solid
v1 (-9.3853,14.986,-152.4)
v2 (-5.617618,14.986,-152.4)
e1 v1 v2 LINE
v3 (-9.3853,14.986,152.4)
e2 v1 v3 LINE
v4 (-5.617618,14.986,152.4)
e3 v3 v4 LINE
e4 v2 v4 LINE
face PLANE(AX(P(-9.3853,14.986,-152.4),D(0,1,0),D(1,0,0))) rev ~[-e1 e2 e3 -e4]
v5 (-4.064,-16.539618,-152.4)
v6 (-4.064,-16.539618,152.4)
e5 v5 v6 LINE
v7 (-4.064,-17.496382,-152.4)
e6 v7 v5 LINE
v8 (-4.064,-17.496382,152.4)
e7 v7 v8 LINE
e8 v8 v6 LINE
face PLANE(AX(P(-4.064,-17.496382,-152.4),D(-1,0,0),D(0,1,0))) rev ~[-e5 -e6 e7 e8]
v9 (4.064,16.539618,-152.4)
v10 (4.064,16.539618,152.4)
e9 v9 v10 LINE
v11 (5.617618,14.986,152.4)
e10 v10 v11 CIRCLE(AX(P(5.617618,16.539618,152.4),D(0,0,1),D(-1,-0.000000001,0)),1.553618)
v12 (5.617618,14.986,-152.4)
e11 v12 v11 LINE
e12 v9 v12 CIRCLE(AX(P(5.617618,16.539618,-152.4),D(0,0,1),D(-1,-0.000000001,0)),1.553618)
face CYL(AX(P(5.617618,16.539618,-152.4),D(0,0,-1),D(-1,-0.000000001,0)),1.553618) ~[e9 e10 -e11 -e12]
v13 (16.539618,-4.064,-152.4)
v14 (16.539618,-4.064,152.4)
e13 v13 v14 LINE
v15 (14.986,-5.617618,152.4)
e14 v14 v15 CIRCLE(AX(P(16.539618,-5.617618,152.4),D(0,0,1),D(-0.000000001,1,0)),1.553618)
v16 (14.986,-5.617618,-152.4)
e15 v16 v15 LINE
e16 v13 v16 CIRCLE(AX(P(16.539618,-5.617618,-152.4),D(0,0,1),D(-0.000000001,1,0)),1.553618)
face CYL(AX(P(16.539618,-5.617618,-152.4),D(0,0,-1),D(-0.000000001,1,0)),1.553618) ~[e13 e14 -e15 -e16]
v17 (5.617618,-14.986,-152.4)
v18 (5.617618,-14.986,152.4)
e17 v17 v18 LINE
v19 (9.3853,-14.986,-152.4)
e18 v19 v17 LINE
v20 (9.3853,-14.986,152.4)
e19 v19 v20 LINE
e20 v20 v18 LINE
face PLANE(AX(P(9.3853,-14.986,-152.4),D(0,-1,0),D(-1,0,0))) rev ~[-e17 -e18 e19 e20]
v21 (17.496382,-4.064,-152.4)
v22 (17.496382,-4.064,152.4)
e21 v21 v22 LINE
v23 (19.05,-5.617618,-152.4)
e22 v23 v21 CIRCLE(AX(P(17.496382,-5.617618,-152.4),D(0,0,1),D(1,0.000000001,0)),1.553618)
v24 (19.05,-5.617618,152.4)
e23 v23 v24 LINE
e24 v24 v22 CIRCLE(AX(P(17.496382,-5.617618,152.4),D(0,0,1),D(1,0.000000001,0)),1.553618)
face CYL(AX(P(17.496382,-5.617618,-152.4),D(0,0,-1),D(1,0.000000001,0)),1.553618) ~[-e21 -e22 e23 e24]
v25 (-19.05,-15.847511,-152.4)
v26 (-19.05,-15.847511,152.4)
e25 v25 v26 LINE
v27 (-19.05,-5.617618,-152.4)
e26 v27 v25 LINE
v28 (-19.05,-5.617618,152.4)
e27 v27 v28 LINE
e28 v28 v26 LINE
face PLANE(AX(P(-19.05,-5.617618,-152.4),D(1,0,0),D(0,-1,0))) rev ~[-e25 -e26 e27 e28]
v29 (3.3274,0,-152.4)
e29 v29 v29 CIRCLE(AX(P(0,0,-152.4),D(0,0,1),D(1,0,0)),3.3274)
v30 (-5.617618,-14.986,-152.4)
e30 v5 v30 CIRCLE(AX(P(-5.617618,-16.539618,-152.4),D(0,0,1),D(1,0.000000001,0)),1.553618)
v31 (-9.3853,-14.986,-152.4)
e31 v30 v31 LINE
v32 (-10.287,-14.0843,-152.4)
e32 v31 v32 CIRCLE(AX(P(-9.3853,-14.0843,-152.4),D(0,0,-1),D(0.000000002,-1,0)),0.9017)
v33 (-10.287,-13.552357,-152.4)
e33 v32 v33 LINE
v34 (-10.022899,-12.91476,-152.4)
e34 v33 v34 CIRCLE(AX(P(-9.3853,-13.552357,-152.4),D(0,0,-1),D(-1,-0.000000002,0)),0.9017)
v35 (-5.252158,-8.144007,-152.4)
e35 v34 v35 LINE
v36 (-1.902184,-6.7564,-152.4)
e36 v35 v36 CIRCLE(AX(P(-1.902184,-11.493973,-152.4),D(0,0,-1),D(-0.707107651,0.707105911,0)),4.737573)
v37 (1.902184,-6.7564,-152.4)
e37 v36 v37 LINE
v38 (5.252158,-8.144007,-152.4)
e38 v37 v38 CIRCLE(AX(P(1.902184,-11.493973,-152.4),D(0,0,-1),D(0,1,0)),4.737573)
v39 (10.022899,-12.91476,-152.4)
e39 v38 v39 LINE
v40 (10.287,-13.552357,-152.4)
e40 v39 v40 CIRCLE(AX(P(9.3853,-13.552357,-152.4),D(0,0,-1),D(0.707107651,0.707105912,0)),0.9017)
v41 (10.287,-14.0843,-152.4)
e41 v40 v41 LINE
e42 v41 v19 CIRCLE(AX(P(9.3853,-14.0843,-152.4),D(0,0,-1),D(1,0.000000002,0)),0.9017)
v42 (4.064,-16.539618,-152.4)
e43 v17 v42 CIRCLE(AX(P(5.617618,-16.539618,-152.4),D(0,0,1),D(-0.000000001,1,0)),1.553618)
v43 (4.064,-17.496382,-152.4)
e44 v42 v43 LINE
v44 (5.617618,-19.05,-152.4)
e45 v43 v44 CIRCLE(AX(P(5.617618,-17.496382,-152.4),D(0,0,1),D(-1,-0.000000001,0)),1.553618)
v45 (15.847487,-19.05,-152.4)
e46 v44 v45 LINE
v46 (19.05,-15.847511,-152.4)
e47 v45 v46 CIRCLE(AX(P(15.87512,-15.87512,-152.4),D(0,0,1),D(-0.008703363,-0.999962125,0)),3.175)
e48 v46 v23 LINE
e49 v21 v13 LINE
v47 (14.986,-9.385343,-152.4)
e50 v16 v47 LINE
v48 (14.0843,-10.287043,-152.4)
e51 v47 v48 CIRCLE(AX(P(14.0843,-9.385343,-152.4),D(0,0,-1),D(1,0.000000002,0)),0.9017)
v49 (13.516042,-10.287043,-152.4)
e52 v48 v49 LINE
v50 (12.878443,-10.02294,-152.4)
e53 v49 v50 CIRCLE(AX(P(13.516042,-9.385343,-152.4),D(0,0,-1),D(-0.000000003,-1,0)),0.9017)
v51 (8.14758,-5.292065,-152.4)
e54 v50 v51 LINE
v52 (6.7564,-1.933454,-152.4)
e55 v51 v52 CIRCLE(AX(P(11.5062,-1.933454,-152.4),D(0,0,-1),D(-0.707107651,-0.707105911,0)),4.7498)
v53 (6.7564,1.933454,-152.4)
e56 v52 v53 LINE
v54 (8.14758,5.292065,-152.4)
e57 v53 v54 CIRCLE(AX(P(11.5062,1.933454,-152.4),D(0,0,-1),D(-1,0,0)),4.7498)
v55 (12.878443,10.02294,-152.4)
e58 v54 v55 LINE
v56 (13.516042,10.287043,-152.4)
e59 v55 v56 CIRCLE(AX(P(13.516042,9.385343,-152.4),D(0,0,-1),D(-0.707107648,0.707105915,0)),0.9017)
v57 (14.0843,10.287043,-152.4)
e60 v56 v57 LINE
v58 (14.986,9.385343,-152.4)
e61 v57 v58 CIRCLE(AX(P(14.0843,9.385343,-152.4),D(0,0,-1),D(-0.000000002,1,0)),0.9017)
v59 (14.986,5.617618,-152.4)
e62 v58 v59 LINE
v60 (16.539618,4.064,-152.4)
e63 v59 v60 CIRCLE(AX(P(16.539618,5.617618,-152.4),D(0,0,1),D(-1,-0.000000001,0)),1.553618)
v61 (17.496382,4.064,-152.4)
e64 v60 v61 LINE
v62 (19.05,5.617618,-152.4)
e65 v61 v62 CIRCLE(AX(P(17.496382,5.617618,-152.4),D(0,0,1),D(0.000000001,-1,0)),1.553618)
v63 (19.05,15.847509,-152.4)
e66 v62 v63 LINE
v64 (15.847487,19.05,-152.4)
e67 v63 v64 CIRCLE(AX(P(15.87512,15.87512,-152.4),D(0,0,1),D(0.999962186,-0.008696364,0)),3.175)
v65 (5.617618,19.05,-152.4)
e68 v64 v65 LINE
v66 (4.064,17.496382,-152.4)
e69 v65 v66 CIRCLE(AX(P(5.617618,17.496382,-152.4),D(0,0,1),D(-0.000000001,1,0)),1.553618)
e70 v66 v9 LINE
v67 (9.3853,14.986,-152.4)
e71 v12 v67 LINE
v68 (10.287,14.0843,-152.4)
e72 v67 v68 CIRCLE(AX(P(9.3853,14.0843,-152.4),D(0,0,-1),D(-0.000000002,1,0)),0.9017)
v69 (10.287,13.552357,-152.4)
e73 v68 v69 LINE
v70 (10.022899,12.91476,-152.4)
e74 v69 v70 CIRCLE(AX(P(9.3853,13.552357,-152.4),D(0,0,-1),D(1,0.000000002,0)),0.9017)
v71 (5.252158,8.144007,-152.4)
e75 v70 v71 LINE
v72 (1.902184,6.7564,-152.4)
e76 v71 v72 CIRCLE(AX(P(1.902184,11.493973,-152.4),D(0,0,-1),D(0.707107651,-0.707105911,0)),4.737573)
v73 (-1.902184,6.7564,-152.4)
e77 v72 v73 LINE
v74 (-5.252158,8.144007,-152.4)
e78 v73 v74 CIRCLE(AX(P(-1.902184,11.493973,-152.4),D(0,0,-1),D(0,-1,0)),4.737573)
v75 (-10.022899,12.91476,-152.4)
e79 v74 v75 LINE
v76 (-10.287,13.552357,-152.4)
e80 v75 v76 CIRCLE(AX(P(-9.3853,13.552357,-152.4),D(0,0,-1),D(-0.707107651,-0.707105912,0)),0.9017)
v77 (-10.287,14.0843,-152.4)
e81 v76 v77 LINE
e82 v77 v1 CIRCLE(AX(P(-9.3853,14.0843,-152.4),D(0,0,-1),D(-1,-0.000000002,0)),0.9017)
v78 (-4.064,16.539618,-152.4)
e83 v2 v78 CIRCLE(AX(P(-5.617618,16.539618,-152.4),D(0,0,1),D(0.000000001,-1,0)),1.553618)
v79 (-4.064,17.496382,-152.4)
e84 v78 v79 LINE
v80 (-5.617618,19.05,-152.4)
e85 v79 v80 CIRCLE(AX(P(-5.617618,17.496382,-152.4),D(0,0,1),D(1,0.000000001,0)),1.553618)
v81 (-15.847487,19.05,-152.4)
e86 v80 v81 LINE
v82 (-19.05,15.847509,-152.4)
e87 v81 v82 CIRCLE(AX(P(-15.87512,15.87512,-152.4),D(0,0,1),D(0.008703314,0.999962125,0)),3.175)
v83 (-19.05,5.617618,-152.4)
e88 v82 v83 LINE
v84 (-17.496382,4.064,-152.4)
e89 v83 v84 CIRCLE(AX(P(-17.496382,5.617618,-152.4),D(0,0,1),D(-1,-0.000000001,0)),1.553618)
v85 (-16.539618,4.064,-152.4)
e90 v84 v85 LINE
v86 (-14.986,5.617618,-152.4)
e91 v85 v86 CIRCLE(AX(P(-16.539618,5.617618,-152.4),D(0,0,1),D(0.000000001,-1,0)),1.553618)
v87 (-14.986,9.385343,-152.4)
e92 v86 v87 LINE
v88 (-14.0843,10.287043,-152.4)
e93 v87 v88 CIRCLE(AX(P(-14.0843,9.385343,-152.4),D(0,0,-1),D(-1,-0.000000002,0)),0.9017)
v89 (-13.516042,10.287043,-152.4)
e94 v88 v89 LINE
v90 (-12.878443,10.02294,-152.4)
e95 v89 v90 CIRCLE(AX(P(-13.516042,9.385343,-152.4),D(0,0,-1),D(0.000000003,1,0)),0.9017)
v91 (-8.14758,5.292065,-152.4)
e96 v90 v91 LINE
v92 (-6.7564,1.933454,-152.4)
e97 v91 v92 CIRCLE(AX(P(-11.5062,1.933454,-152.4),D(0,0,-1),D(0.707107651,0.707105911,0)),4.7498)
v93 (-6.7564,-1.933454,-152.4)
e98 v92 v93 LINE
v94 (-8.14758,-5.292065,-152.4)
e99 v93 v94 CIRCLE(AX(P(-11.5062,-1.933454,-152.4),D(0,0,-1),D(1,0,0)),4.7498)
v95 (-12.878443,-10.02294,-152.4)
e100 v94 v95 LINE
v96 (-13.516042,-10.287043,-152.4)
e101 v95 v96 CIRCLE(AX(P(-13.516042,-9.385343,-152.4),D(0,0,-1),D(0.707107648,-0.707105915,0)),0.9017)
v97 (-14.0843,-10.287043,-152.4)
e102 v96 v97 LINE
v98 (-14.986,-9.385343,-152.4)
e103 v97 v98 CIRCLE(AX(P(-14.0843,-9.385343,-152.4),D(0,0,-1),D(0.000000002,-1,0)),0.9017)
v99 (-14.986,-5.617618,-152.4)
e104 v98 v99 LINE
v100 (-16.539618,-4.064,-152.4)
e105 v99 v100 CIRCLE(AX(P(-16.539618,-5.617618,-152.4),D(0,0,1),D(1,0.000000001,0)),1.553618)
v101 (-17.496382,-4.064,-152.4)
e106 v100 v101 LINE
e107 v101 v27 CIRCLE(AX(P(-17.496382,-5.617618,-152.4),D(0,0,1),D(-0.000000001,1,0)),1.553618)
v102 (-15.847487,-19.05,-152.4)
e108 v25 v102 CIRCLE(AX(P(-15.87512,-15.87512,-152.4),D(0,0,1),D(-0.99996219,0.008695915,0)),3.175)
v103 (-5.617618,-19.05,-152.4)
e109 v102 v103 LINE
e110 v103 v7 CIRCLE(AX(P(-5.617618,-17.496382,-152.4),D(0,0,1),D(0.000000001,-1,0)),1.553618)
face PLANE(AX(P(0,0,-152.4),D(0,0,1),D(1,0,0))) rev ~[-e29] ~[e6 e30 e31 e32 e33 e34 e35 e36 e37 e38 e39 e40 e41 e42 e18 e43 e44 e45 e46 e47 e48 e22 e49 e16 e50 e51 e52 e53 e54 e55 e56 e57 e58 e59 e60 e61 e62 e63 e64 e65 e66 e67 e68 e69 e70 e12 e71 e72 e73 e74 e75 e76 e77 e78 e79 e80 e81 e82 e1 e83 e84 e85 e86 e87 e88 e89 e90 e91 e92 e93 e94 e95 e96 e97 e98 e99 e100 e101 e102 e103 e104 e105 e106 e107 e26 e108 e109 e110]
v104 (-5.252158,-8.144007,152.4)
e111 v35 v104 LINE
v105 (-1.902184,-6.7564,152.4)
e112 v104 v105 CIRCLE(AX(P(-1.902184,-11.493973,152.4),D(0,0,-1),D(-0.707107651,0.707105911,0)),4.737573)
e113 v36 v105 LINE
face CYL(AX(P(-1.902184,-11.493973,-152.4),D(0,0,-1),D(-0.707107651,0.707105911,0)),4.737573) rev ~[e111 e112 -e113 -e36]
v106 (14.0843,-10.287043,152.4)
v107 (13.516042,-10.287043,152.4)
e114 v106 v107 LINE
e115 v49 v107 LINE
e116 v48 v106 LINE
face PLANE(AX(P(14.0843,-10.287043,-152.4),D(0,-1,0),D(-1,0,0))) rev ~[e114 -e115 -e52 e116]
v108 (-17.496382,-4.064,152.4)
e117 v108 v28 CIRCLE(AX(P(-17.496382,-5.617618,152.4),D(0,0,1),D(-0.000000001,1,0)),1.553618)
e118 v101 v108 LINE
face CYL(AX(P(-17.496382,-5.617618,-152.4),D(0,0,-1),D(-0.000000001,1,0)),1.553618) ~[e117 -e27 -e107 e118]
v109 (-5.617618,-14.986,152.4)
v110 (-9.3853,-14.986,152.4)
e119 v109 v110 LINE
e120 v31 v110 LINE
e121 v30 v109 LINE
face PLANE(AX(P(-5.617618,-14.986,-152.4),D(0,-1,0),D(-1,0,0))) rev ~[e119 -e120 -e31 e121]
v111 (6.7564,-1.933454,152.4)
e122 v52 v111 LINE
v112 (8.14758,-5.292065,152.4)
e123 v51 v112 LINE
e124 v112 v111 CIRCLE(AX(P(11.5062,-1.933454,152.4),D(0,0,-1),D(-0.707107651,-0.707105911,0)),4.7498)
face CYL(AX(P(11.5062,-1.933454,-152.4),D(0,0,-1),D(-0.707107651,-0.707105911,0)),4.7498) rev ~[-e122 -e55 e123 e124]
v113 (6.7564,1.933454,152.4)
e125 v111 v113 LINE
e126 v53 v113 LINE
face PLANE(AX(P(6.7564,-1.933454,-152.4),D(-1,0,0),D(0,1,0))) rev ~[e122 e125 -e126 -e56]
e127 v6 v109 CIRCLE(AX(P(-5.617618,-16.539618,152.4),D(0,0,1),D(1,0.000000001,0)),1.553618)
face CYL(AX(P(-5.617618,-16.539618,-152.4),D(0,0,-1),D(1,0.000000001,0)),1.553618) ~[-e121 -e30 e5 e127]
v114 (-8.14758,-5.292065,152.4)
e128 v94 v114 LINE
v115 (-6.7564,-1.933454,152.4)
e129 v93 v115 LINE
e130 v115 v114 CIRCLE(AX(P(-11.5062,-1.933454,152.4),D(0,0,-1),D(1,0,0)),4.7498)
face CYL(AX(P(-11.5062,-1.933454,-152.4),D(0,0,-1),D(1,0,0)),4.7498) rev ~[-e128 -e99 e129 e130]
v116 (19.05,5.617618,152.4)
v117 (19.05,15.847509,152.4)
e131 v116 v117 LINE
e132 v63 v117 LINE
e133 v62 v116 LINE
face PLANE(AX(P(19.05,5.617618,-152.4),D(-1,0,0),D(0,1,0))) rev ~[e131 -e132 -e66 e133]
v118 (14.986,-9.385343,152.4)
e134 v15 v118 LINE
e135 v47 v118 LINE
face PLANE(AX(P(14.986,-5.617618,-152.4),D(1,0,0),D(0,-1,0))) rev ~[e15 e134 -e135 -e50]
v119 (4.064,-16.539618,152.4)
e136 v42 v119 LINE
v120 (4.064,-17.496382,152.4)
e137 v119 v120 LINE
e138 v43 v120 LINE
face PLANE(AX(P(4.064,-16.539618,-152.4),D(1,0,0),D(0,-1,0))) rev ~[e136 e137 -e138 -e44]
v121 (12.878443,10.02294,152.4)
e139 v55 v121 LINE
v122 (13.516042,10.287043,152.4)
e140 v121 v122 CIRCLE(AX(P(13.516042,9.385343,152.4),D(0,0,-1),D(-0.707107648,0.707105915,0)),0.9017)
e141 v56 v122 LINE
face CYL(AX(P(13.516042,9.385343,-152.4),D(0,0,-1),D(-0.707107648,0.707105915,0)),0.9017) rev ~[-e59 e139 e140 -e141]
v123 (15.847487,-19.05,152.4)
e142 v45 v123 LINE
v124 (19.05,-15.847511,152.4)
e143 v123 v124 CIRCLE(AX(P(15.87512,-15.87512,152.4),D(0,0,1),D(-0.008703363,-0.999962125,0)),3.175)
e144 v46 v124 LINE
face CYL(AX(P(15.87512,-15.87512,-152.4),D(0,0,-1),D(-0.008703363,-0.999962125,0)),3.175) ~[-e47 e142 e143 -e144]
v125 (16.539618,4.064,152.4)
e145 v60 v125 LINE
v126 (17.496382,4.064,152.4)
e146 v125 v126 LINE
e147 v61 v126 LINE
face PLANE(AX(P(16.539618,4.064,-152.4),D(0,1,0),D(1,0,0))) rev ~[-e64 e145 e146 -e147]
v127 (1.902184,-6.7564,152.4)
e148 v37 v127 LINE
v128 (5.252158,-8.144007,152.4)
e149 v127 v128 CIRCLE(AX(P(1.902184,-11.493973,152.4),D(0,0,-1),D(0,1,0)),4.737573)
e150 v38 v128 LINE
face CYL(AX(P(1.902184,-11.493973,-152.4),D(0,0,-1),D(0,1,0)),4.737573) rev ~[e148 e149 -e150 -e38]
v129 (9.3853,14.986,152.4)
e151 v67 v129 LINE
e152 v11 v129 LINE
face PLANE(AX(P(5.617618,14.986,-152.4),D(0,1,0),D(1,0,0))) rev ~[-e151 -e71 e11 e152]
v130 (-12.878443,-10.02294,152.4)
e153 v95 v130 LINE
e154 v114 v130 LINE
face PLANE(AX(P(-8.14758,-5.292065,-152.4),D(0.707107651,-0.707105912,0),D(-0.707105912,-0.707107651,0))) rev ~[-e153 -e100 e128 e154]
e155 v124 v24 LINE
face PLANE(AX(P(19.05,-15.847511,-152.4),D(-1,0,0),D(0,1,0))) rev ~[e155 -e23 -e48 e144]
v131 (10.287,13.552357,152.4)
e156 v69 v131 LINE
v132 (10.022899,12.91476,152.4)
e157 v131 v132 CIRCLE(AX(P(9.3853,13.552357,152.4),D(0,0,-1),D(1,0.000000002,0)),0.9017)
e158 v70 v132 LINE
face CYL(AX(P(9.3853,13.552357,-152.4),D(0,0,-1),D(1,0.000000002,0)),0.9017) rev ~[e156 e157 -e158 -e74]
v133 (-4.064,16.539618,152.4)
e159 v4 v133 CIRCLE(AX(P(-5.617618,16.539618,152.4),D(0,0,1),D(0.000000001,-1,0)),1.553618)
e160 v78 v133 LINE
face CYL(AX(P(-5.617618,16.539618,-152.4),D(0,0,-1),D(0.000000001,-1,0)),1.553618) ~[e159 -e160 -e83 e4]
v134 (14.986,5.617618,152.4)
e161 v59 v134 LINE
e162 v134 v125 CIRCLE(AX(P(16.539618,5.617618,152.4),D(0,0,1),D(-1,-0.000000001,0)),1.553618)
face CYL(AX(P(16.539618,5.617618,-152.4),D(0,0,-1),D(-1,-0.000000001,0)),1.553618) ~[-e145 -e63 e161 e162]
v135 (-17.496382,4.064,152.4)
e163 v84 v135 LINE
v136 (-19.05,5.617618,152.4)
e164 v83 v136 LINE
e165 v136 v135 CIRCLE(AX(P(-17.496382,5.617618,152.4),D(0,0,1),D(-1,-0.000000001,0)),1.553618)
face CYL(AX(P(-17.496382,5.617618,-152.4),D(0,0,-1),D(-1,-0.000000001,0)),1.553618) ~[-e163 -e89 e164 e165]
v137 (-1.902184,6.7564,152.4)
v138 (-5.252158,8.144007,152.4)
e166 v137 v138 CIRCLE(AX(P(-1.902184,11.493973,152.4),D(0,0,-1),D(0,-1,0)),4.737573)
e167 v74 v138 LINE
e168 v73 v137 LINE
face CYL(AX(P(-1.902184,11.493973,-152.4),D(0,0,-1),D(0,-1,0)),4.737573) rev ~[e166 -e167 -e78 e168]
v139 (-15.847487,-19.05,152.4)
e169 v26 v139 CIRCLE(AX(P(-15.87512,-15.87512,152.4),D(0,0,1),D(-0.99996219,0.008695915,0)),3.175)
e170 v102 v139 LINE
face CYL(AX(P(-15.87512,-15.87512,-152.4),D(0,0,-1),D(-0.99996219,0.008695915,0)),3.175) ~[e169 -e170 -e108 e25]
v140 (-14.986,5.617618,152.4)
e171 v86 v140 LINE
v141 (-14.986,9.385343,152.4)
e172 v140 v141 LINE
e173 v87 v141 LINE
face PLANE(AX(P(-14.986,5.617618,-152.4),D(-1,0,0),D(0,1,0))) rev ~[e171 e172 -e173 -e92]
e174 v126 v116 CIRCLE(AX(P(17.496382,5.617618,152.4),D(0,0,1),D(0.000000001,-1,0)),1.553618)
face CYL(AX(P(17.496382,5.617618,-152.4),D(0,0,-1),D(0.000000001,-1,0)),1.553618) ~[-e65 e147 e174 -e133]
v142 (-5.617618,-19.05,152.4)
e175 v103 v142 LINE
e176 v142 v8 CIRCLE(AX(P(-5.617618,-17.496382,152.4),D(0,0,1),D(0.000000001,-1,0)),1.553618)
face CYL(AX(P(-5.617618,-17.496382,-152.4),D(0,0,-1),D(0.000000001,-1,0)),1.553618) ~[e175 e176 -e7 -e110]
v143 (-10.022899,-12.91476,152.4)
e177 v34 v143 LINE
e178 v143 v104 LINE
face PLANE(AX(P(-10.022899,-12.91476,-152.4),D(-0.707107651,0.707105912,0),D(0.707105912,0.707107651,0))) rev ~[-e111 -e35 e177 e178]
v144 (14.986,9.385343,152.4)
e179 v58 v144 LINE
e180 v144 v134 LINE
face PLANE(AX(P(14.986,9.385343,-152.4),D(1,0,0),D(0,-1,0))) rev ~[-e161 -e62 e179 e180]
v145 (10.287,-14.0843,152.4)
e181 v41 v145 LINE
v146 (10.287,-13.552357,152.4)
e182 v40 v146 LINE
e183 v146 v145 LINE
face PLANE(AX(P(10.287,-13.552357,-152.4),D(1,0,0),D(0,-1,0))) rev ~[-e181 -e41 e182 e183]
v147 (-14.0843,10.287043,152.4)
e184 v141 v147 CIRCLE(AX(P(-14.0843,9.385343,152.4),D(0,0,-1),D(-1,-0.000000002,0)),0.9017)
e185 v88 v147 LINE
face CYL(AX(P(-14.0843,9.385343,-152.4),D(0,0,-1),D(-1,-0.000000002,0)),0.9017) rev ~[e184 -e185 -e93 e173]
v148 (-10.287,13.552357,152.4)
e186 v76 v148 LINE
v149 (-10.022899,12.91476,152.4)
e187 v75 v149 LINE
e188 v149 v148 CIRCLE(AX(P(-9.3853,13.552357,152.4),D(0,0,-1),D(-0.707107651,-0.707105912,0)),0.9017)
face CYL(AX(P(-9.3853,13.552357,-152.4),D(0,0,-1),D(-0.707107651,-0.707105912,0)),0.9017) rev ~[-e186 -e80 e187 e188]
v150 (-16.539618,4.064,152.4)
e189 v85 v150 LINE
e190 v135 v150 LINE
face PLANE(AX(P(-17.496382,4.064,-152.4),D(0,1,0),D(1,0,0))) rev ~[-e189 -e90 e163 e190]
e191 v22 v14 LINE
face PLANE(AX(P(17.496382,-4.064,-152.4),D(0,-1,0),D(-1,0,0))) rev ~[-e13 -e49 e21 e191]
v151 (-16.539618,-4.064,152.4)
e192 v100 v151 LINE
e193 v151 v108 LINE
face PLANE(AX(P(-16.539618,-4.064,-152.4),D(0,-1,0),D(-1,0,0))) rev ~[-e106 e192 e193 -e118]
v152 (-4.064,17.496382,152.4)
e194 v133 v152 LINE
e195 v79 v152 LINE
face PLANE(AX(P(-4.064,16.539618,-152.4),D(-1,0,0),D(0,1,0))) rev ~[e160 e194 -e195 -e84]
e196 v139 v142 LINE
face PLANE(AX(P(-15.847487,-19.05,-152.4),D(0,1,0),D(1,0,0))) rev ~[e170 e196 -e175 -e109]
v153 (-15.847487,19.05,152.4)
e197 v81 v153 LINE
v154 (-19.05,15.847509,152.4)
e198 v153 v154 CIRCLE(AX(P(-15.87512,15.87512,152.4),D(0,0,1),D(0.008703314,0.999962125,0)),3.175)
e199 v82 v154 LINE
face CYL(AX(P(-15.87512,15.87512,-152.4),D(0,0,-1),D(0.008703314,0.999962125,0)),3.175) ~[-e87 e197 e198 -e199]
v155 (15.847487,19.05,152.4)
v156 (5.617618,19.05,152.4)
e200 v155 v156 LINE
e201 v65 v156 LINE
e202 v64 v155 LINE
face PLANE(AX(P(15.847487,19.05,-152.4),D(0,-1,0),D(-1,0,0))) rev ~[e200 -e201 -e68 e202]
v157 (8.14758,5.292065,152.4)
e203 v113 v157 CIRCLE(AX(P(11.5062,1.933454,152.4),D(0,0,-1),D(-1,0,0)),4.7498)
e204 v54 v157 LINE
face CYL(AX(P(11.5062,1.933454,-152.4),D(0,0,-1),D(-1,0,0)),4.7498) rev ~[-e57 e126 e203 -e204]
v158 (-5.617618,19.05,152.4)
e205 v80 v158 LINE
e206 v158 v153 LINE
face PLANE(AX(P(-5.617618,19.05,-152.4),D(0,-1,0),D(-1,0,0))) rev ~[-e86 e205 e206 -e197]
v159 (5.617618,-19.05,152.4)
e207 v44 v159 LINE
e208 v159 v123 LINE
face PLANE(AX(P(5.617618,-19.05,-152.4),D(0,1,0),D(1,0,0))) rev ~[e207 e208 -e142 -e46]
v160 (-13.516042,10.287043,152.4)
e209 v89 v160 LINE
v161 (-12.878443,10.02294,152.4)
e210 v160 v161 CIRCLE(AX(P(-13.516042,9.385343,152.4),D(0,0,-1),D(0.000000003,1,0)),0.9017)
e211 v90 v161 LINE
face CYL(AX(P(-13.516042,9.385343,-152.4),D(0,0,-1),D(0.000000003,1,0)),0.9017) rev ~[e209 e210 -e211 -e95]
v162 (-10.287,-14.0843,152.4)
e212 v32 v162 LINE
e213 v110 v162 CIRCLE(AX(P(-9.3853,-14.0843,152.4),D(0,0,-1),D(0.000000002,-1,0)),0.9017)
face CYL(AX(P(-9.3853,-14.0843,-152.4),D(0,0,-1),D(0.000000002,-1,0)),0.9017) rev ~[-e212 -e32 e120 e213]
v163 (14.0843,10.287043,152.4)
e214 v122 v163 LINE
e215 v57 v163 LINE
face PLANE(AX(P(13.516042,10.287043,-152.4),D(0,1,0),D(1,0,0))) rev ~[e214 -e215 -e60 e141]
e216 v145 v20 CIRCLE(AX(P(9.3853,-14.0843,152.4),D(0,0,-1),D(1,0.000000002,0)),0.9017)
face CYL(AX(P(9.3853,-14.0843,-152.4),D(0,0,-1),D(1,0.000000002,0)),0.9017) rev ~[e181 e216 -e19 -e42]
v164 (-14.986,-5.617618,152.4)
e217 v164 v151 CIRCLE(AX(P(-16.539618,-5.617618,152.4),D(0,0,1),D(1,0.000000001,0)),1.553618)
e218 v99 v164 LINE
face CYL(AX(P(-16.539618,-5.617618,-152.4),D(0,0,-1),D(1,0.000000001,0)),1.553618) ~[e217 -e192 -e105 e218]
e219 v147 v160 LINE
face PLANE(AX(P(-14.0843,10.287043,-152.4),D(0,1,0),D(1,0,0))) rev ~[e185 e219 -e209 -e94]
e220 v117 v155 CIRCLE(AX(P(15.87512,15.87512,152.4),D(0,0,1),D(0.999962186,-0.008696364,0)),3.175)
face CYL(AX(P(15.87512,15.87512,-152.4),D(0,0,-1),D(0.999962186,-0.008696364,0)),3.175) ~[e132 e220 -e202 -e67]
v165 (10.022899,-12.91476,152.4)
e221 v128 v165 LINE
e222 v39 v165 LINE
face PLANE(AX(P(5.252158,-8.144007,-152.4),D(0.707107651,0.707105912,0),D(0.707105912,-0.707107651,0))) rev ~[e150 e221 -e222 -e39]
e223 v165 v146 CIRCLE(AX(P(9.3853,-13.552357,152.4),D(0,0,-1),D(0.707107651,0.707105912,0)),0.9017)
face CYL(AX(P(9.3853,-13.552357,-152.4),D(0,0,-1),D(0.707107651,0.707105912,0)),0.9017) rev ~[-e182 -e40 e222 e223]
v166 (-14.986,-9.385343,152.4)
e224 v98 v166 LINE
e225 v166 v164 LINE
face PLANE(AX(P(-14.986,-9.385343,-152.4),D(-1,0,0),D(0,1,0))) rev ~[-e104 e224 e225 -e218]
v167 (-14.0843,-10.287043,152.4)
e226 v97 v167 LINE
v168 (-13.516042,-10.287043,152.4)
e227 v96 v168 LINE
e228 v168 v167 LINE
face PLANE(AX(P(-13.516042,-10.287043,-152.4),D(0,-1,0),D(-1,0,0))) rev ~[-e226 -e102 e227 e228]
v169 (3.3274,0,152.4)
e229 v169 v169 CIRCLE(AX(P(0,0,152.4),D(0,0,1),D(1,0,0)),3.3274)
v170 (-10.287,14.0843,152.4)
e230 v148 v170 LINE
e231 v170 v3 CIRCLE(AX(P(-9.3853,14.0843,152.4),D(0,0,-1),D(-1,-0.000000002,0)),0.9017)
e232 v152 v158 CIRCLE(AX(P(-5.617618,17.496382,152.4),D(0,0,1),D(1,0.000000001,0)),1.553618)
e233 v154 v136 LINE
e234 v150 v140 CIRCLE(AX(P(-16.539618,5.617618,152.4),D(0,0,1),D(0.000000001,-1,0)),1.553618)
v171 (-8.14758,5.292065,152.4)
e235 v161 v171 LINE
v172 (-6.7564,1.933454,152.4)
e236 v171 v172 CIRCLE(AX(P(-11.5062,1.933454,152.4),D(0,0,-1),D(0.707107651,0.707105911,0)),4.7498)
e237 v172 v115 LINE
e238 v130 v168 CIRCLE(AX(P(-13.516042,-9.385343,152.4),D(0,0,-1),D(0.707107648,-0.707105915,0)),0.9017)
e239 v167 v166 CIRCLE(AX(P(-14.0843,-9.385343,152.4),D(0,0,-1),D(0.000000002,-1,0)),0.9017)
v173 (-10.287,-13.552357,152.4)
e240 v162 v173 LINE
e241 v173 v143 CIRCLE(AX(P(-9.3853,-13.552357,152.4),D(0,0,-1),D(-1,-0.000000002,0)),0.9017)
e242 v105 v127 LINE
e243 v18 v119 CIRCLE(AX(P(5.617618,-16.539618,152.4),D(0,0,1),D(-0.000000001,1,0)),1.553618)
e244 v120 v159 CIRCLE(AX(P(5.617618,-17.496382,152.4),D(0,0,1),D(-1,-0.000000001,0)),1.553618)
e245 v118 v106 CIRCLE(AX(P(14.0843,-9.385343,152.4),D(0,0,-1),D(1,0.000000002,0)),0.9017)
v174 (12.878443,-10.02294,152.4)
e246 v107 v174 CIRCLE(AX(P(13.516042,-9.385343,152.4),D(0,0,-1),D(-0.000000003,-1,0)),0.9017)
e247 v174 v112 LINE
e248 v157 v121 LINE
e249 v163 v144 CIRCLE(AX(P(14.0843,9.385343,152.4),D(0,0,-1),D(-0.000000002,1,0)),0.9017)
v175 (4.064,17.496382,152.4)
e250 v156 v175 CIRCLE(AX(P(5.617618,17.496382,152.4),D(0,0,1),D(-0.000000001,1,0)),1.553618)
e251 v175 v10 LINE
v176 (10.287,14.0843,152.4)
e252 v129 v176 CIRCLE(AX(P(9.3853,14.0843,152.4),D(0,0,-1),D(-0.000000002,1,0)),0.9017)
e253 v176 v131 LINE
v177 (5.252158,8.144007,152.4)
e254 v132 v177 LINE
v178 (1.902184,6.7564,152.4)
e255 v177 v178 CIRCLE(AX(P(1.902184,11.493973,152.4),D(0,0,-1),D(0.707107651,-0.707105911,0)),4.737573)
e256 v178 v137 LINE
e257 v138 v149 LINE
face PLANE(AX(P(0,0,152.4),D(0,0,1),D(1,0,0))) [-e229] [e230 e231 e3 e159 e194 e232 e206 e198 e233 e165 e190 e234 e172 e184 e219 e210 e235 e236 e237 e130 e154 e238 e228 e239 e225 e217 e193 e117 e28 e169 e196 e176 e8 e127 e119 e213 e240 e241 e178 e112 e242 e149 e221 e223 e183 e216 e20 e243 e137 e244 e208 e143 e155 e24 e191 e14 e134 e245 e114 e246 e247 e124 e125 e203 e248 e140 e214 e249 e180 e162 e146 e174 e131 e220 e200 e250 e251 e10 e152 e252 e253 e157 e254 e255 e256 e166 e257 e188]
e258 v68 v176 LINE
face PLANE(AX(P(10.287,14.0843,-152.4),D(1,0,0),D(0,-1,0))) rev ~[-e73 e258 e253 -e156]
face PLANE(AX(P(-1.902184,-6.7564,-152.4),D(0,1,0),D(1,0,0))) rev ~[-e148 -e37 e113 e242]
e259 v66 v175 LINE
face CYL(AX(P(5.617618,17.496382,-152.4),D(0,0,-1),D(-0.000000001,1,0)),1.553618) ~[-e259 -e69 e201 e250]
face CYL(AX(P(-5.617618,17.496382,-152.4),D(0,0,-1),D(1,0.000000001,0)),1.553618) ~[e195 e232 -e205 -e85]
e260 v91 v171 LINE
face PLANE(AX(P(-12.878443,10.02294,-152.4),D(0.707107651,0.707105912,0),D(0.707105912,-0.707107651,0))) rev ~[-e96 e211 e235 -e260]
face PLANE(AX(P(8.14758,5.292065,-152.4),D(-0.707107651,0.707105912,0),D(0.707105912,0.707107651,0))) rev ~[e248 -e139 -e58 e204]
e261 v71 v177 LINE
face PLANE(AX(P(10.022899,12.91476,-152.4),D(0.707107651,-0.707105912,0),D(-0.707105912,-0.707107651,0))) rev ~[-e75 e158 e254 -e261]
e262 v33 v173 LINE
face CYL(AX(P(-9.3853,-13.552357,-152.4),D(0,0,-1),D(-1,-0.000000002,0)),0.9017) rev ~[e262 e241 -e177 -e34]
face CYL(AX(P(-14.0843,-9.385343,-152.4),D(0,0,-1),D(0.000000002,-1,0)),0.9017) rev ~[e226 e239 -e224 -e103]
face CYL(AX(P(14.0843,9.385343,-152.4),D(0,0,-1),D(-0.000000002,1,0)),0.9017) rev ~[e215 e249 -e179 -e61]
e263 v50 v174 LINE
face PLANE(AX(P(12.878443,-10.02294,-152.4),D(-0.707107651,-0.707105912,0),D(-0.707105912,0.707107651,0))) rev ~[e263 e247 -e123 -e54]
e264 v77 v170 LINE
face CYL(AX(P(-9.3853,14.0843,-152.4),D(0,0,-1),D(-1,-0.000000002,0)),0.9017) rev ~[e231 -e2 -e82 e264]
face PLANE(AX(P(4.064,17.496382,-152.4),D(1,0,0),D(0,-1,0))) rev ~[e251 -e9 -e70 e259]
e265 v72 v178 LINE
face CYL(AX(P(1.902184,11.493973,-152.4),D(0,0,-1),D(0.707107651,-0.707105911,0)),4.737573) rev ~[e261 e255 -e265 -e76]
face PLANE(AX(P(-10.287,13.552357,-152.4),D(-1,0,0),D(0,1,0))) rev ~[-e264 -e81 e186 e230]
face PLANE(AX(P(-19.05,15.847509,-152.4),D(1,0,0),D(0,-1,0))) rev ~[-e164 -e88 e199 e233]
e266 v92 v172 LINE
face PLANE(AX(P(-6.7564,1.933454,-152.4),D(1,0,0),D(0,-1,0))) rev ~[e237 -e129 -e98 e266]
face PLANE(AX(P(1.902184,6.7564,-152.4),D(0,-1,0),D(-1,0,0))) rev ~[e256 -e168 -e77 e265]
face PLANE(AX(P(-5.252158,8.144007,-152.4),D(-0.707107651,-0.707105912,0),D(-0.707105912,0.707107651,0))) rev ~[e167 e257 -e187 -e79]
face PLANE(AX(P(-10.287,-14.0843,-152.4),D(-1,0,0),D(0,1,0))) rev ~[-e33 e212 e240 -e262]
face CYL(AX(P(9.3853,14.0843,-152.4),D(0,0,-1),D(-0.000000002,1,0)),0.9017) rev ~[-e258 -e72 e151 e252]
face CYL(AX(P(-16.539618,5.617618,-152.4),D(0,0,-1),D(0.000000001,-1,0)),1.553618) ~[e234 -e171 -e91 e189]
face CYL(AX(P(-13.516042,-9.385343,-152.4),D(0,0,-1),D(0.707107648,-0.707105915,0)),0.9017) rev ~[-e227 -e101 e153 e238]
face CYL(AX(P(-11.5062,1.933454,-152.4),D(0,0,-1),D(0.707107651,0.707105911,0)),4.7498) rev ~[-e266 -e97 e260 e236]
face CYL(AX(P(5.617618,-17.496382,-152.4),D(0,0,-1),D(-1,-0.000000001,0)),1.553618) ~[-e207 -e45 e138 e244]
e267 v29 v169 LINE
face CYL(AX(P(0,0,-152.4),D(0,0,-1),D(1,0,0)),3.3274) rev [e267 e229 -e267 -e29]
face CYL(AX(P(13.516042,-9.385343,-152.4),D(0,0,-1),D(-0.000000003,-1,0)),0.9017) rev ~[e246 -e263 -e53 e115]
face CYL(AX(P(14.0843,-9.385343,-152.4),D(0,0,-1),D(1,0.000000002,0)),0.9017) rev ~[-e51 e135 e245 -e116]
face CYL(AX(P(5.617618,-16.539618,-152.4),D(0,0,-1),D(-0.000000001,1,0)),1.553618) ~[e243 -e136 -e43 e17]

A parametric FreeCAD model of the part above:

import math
import FreeCAD as App
import Part
import Sketcher
Q = App.Units.Quantity

doc = App.newDocument("Part")
body = doc.addObject("PartDesign::Body", "Body")

# Sketch on XY plane
sketch1 = body.newObject("Sketcher::SketchObject", "Sketch")
sketch1.AttachmentSupport = (doc.getObject("XY_Plane"), [""])
sketch1.MapMode = "FlatFace"
sketch1.addGeometry([
    Part.ArcOfCircle(Part.Circle(App.Vector(-5.617618, 16.539618, 0), App.Vector(0, 0, 1), 1.553618), math.radians(-90), math.radians(0)),  # 0
    Part.LineSegment(App.Vector(-4.064, 16.539618, 0), App.Vector(-4.064, 17.496382, 0)),  # 1
    Part.ArcOfCircle(Part.Circle(App.Vector(-5.617618, 17.496382, 0), App.Vector(0, 0, 1), 1.553618), math.radians(0), math.radians(90)),  # 2
    Part.LineSegment(App.Vector(-5.617618, 19.05, 0), App.Vector(-15.847487, 19.05, 0)),  # 3
    Part.ArcOfCircle(Part.Circle(App.Vector(-15.87512, 15.87512, 0), App.Vector(0, 0, 1), 3.175), math.radians(89.501331), math.radians(180.498271)),  # 4
    Part.LineSegment(App.Vector(-19.05, 15.847509, 0), App.Vector(-19.05, 5.617618, 0)),  # 5
    Part.ArcOfCircle(Part.Circle(App.Vector(-17.496382, 5.617618, 0), App.Vector(0, 0, 1), 1.553618), math.radians(-180), math.radians(-90)),  # 6
    Part.LineSegment(App.Vector(-17.496382, 4.064, 0), App.Vector(-16.539618, 4.064, 0)),  # 7
    Part.ArcOfCircle(Part.Circle(App.Vector(-16.539618, 5.617618, 0), App.Vector(0, 0, 1), 1.553618), math.radians(-90), math.radians(0)),  # 8
    Part.LineSegment(App.Vector(-14.986, 5.617618, 0), App.Vector(-14.986, 9.385343, 0)),  # 9
    Part.ArcOfCircle(Part.Circle(App.Vector(-14.0843, 9.385343, 0), App.Vector(0, 0, 1), 0.9017), math.radians(90), math.radians(180)),  # 10
    Part.LineSegment(App.Vector(-14.0843, 10.287043, 0), App.Vector(-13.516042, 10.287043, 0)),  # 11
    Part.ArcOfCircle(Part.Circle(App.Vector(-13.516042, 9.385343, 0), App.Vector(0, 0, 1), 0.9017), math.radians(44.99993), math.radians(90)),  # 12
    Part.LineSegment(App.Vector(-12.878443, 10.02294, 0), App.Vector(-8.14758, 5.292065, 0)),  # 13
    Part.ArcOfCircle(Part.Circle(App.Vector(-11.5062, 1.933454, 0), App.Vector(0, 0, 1), 4.7498), math.radians(0), math.radians(44.99993)),  # 14
    Part.LineSegment(App.Vector(-6.7564, 1.933454, 0), App.Vector(-6.7564, -1.933454, 0)),  # 15
    Part.ArcOfCircle(Part.Circle(App.Vector(-11.5062, -1.933454, 0), App.Vector(0, 0, 1), 4.7498), math.radians(-44.99993), math.radians(0)),  # 16
    Part.LineSegment(App.Vector(-8.14758, -5.292065, 0), App.Vector(-12.878443, -10.02294, 0)),  # 17
    Part.ArcOfCircle(Part.Circle(App.Vector(-13.516042, -9.385343, 0), App.Vector(0, 0, 1), 0.9017), math.radians(-90), math.radians(-44.99993)),  # 18
    Part.LineSegment(App.Vector(-13.516042, -10.287043, 0), App.Vector(-14.0843, -10.287043, 0)),  # 19
    Part.ArcOfCircle(Part.Circle(App.Vector(-14.0843, -9.385343, 0), App.Vector(0, 0, 1), 0.9017), math.radians(180), math.radians(270)),  # 20
    Part.LineSegment(App.Vector(-14.986, -9.385343, 0), App.Vector(-14.986, -5.617618, 0)),  # 21
    Part.ArcOfCircle(Part.Circle(App.Vector(-16.539618, -5.617618, 0), App.Vector(0, 0, 1), 1.553618), math.radians(0), math.radians(90)),  # 22
    Part.LineSegment(App.Vector(-16.539618, -4.064, 0), App.Vector(-17.496382, -4.064, 0)),  # 23
    Part.ArcOfCircle(Part.Circle(App.Vector(-17.496382, -5.617618, 0), App.Vector(0, 0, 1), 1.553618), math.radians(90), math.radians(180)),  # 24
    Part.LineSegment(App.Vector(-19.05, -5.617618, 0), App.Vector(-19.05, -15.847511, 0)),  # 25
    Part.ArcOfCircle(Part.Circle(App.Vector(-15.87512, -15.87512, 0), App.Vector(0, 0, 1), 3.175), math.radians(179.501754), math.radians(270.498672)),  # 26
    Part.LineSegment(App.Vector(-15.847487, -19.05, 0), App.Vector(-5.617618, -19.05, 0)),  # 27
    Part.ArcOfCircle(Part.Circle(App.Vector(-5.617618, -17.496382, 0), App.Vector(0, 0, 1), 1.553618), math.radians(-90), math.radians(0)),  # 28
    Part.LineSegment(App.Vector(-4.064, -17.496382, 0), App.Vector(-4.064, -16.539618, 0)),  # 29
    Part.ArcOfCircle(Part.Circle(App.Vector(-5.617618, -16.539618, 0), App.Vector(0, 0, 1), 1.553618), math.radians(0), math.radians(90)),  # 30
    Part.LineSegment(App.Vector(-5.617618, -14.986, 0), App.Vector(-9.3853, -14.986, 0)),  # 31
    Part.ArcOfCircle(Part.Circle(App.Vector(-9.3853, -14.0843, 0), App.Vector(0, 0, 1), 0.9017), math.radians(180), math.radians(270)),  # 32
    Part.LineSegment(App.Vector(-10.287, -14.0843, 0), App.Vector(-10.287, -13.552357, 0)),  # 33
    Part.ArcOfCircle(Part.Circle(App.Vector(-9.3853, -13.552357, 0), App.Vector(0, 0, 1), 0.9017), math.radians(135.00007), math.radians(180)),  # 34
    Part.LineSegment(App.Vector(-10.022899, -12.91476, 0), App.Vector(-5.252158, -8.144007, 0)),  # 35
    Part.ArcOfCircle(Part.Circle(App.Vector(-1.902184, -11.493973, 0), App.Vector(0, 0, 1), 4.737573), math.radians(90), math.radians(135.00007)),  # 36
    Part.LineSegment(App.Vector(-1.902184, -6.7564, 0), App.Vector(1.902184, -6.7564, 0)),  # 37
    Part.ArcOfCircle(Part.Circle(App.Vector(1.902184, -11.493973, 0), App.Vector(0, 0, 1), 4.737573), math.radians(44.99993), math.radians(90)),  # 38
    Part.LineSegment(App.Vector(5.252158, -8.144007, 0), App.Vector(10.022899, -12.91476, 0)),  # 39
    Part.ArcOfCircle(Part.Circle(App.Vector(9.3853, -13.552357, 0), App.Vector(0, 0, 1), 0.9017), math.radians(0), math.radians(44.99993)),  # 40
    Part.LineSegment(App.Vector(10.287, -13.552357, 0), App.Vector(10.287, -14.0843, 0)),  # 41
    Part.ArcOfCircle(Part.Circle(App.Vector(9.3853, -14.0843, 0), App.Vector(0, 0, 1), 0.9017), math.radians(-90), math.radians(0)),  # 42
    Part.LineSegment(App.Vector(9.3853, -14.986, 0), App.Vector(5.617618, -14.986, 0)),  # 43
    Part.ArcOfCircle(Part.Circle(App.Vector(5.617618, -16.539618, 0), App.Vector(0, 0, 1), 1.553618), math.radians(90), math.radians(180)),  # 44
    Part.LineSegment(App.Vector(4.064, -16.539618, 0), App.Vector(4.064, -17.496382, 0)),  # 45
    Part.ArcOfCircle(Part.Circle(App.Vector(5.617618, -17.496382, 0), App.Vector(0, 0, 1), 1.553618), math.radians(-180), math.radians(-90)),  # 46
    Part.LineSegment(App.Vector(5.617618, -19.05, 0), App.Vector(15.847487, -19.05, 0)),  # 47
    Part.ArcOfCircle(Part.Circle(App.Vector(15.87512, -15.87512, 0), App.Vector(0, 0, 1), 3.175), math.radians(-90.498672), math.radians(0.498246)),  # 48
    Part.LineSegment(App.Vector(19.05, -15.847511, 0), App.Vector(19.05, -5.617618, 0)),  # 49
    Part.ArcOfCircle(Part.Circle(App.Vector(17.496382, -5.617618, 0), App.Vector(0, 0, 1), 1.553618), math.radians(0), math.radians(90)),  # 50
    Part.LineSegment(App.Vector(17.496382, -4.064, 0), App.Vector(16.539618, -4.064, 0)),  # 51
    Part.ArcOfCircle(Part.Circle(App.Vector(16.539618, -5.617618, 0), App.Vector(0, 0, 1), 1.553618), math.radians(90), math.radians(180)),  # 52
    Part.LineSegment(App.Vector(14.986, -5.617618, 0), App.Vector(14.986, -9.385343, 0)),  # 53
    Part.ArcOfCircle(Part.Circle(App.Vector(14.0843, -9.385343, 0), App.Vector(0, 0, 1), 0.9017), math.radians(-90), math.radians(0)),  # 54
    Part.LineSegment(App.Vector(14.0843, -10.287043, 0), App.Vector(13.516042, -10.287043, 0)),  # 55
    Part.ArcOfCircle(Part.Circle(App.Vector(13.516042, -9.385343, 0), App.Vector(0, 0, 1), 0.9017), math.radians(-135.00007), math.radians(-90)),  # 56
    Part.LineSegment(App.Vector(12.878443, -10.02294, 0), App.Vector(8.14758, -5.292065, 0)),  # 57
    Part.ArcOfCircle(Part.Circle(App.Vector(11.5062, -1.933454, 0), App.Vector(0, 0, 1), 4.7498), math.radians(-180), math.radians(-135.00007)),  # 58
    Part.LineSegment(App.Vector(6.7564, -1.933454, 0), App.Vector(6.7564, 1.933454, 0)),  # 59
    Part.ArcOfCircle(Part.Circle(App.Vector(11.5062, 1.933454, 0), App.Vector(0, 0, 1), 4.7498), math.radians(135.00007), math.radians(180)),  # 60
    Part.LineSegment(App.Vector(8.14758, 5.292065, 0), App.Vector(12.878443, 10.02294, 0)),  # 61
    Part.ArcOfCircle(Part.Circle(App.Vector(13.516042, 9.385343, 0), App.Vector(0, 0, 1), 0.9017), math.radians(90), math.radians(135.00007)),  # 62
    Part.LineSegment(App.Vector(13.516042, 10.287043, 0), App.Vector(14.0843, 10.287043, 0)),  # 63
    Part.ArcOfCircle(Part.Circle(App.Vector(14.0843, 9.385343, 0), App.Vector(0, 0, 1), 0.9017), math.radians(0), math.radians(90)),  # 64
    Part.LineSegment(App.Vector(14.986, 9.385343, 0), App.Vector(14.986, 5.617618, 0)),  # 65
    Part.ArcOfCircle(Part.Circle(App.Vector(16.539618, 5.617618, 0), App.Vector(0, 0, 1), 1.553618), math.radians(-180), math.radians(-90)),  # 66
    Part.LineSegment(App.Vector(16.539618, 4.064, 0), App.Vector(17.496382, 4.064, 0)),  # 67
    Part.ArcOfCircle(Part.Circle(App.Vector(17.496382, 5.617618, 0), App.Vector(0, 0, 1), 1.553618), math.radians(-90), math.radians(0)),  # 68
    Part.LineSegment(App.Vector(19.05, 5.617618, 0), App.Vector(19.05, 15.847509, 0)),  # 69
    Part.ArcOfCircle(Part.Circle(App.Vector(15.87512, 15.87512, 0), App.Vector(0, 0, 1), 3.175), math.radians(-0.498271), math.radians(90.498669)),  # 70
    Part.LineSegment(App.Vector(15.847487, 19.05, 0), App.Vector(5.617618, 19.05, 0)),  # 71
    Part.ArcOfCircle(Part.Circle(App.Vector(5.617618, 17.496382, 0), App.Vector(0, 0, 1), 1.553618), math.radians(90), math.radians(180)),  # 72
    Part.LineSegment(App.Vector(4.064, 17.496382, 0), App.Vector(4.064, 16.539618, 0)),  # 73
    Part.ArcOfCircle(Part.Circle(App.Vector(5.617618, 16.539618, 0), App.Vector(0, 0, 1), 1.553618), math.radians(-180), math.radians(-90)),  # 74
    Part.LineSegment(App.Vector(5.617618, 14.986, 0), App.Vector(9.3853, 14.986, 0)),  # 75
    Part.ArcOfCircle(Part.Circle(App.Vector(9.3853, 14.0843, 0), App.Vector(0, 0, 1), 0.9017), math.radians(0), math.radians(90)),  # 76
    Part.LineSegment(App.Vector(10.287, 14.0843, 0), App.Vector(10.287, 13.552357, 0)),  # 77
    Part.ArcOfCircle(Part.Circle(App.Vector(9.3853, 13.552357, 0), App.Vector(0, 0, 1), 0.9017), math.radians(-44.99993), math.radians(0)),  # 78
    Part.LineSegment(App.Vector(10.022899, 12.91476, 0), App.Vector(5.252158, 8.144007, 0)),  # 79
    Part.ArcOfCircle(Part.Circle(App.Vector(1.902184, 11.493973, 0), App.Vector(0, 0, 1), 4.737573), math.radians(-90), math.radians(-44.99993)),  # 80
    Part.LineSegment(App.Vector(1.902184, 6.7564, 0), App.Vector(-1.902184, 6.7564, 0)),  # 81
    Part.ArcOfCircle(Part.Circle(App.Vector(-1.902184, 11.493973, 0), App.Vector(0, 0, 1), 4.737573), math.radians(-135.00007), math.radians(-90)),  # 82
    Part.LineSegment(App.Vector(-5.252158, 8.144007, 0), App.Vector(-10.022899, 12.91476, 0)),  # 83
    Part.ArcOfCircle(Part.Circle(App.Vector(-9.3853, 13.552357, 0), App.Vector(0, 0, 1), 0.9017), math.radians(180), math.radians(224.99993)),  # 84
    Part.LineSegment(App.Vector(-10.287, 13.552357, 0), App.Vector(-10.287, 14.0843, 0)),  # 85
    Part.ArcOfCircle(Part.Circle(App.Vector(-9.3853, 14.0843, 0), App.Vector(0, 0, 1), 0.9017), math.radians(90), math.radians(180)),  # 86
    Part.LineSegment(App.Vector(-9.3853, 14.986, 0), App.Vector(-5.617618, 14.986, 0)),  # 87
    Part.Circle(App.Vector(0, 0, 0), App.Vector(0, 0, 1), 3.3274),  # 88
], False)
sketch1.addConstraint([
    Sketcher.Constraint("Tangent", 0, 2, 1, 1),
    Sketcher.Constraint("Tangent", 1, 2, 2, 1),
    Sketcher.Constraint("Tangent", 2, 2, 3, 1),
    Sketcher.Constraint("Coincident", 3, 2, 4, 1),
    Sketcher.Constraint("Coincident", 4, 2, 5, 1),
    Sketcher.Constraint("Tangent", 5, 2, 6, 1),
    Sketcher.Constraint("Tangent", 6, 2, 7, 1),
    Sketcher.Constraint("Tangent", 7, 2, 8, 1),
    Sketcher.Constraint("Tangent", 8, 2, 9, 1),
    Sketcher.Constraint("Tangent", 9, 2, 10, 2),
    Sketcher.Constraint("Tangent", 10, 1, 11, 1),
    Sketcher.Constraint("Tangent", 11, 2, 12, 2),
    Sketcher.Constraint("Tangent", 12, 1, 13, 1),
    Sketcher.Constraint("Tangent", 13, 2, 14, 2),
    Sketcher.Constraint("Tangent", 14, 1, 15, 1),
    Sketcher.Constraint("Tangent", 15, 2, 16, 2),
    Sketcher.Constraint("Tangent", 16, 1, 17, 1),
    Sketcher.Constraint("Tangent", 17, 2, 18, 2),
    Sketcher.Constraint("Tangent", 18, 1, 19, 1),
    Sketcher.Constraint("Tangent", 19, 2, 20, 2),
    Sketcher.Constraint("Tangent", 20, 1, 21, 1),
    Sketcher.Constraint("Tangent", 21, 2, 22, 1),
    Sketcher.Constraint("Tangent", 22, 2, 23, 1),
    Sketcher.Constraint("Tangent", 23, 2, 24, 1),
    Sketcher.Constraint("Tangent", 24, 2, 25, 1),
    Sketcher.Constraint("Coincident", 25, 2, 26, 1),
    Sketcher.Constraint("Coincident", 26, 2, 27, 1),
    Sketcher.Constraint("Tangent", 27, 2, 28, 1),
    Sketcher.Constraint("Tangent", 28, 2, 29, 1),
    Sketcher.Constraint("Tangent", 29, 2, 30, 1),
    Sketcher.Constraint("Tangent", 30, 2, 31, 1),
    Sketcher.Constraint("Tangent", 31, 2, 32, 2),
    Sketcher.Constraint("Tangent", 32, 1, 33, 1),
    Sketcher.Constraint("Tangent", 33, 2, 34, 2),
    Sketcher.Constraint("Tangent", 34, 1, 35, 1),
    Sketcher.Constraint("Tangent", 35, 2, 36, 2),
    Sketcher.Constraint("Tangent", 36, 1, 37, 1),
    Sketcher.Constraint("Tangent", 37, 2, 38, 2),
    Sketcher.Constraint("Tangent", 38, 1, 39, 1),
    Sketcher.Constraint("Tangent", 39, 2, 40, 2),
    Sketcher.Constraint("Tangent", 40, 1, 41, 1),
    Sketcher.Constraint("Tangent", 41, 2, 42, 2),
    Sketcher.Constraint("Tangent", 42, 1, 43, 1),
    Sketcher.Constraint("Tangent", 43, 2, 44, 1),
    Sketcher.Constraint("Tangent", 44, 2, 45, 1),
    Sketcher.Constraint("Tangent", 45, 2, 46, 1),
    Sketcher.Constraint("Tangent", 46, 2, 47, 1),
    Sketcher.Constraint("Coincident", 47, 2, 48, 1),
    Sketcher.Constraint("Coincident", 48, 2, 49, 1),
    Sketcher.Constraint("Tangent", 49, 2, 50, 1),
    Sketcher.Constraint("Tangent", 50, 2, 51, 1),
    Sketcher.Constraint("Tangent", 51, 2, 52, 1),
    Sketcher.Constraint("Tangent", 52, 2, 53, 1),
    Sketcher.Constraint("Tangent", 53, 2, 54, 2),
    Sketcher.Constraint("Tangent", 54, 1, 55, 1),
    Sketcher.Constraint("Tangent", 55, 2, 56, 2),
    Sketcher.Constraint("Tangent", 56, 1, 57, 1),
    Sketcher.Constraint("Tangent", 57, 2, 58, 2),
    Sketcher.Constraint("Tangent", 58, 1, 59, 1),
    Sketcher.Constraint("Tangent", 59, 2, 60, 2),
    Sketcher.Constraint("Tangent", 60, 1, 61, 1),
    Sketcher.Constraint("Tangent", 61, 2, 62, 2),
    Sketcher.Constraint("Tangent", 62, 1, 63, 1),
    Sketcher.Constraint("Tangent", 63, 2, 64, 2),
    Sketcher.Constraint("Tangent", 64, 1, 65, 1),
    Sketcher.Constraint("Tangent", 65, 2, 66, 1),
    Sketcher.Constraint("Tangent", 66, 2, 67, 1),
    Sketcher.Constraint("Tangent", 67, 2, 68, 1),
    Sketcher.Constraint("Tangent", 68, 2, 69, 1),
    Sketcher.Constraint("Coincident", 69, 2, 70, 1),
    Sketcher.Constraint("Coincident", 70, 2, 71, 1),
    Sketcher.Constraint("Tangent", 71, 2, 72, 1),
    Sketcher.Constraint("Tangent", 72, 2, 73, 1),
    Sketcher.Constraint("Tangent", 73, 2, 74, 1),
    Sketcher.Constraint("Tangent", 74, 2, 75, 1),
    Sketcher.Constraint("Tangent", 75, 2, 76, 2),
    Sketcher.Constraint("Tangent", 76, 1, 77, 1),
    Sketcher.Constraint("Tangent", 77, 2, 78, 2),
    Sketcher.Constraint("Tangent", 78, 1, 79, 1),
    Sketcher.Constraint("Tangent", 79, 2, 80, 2),
    Sketcher.Constraint("Tangent", 80, 1, 81, 1),
    Sketcher.Constraint("Tangent", 81, 2, 82, 2),
    Sketcher.Constraint("Tangent", 82, 1, 83, 1),
    Sketcher.Constraint("Tangent", 83, 2, 84, 2),
    Sketcher.Constraint("Tangent", 84, 1, 85, 1),
    Sketcher.Constraint("Tangent", 85, 2, 86, 2),
    Sketcher.Constraint("Tangent", 86, 1, 87, 1),
    Sketcher.Constraint("Tangent", 87, 2, 0, 1),
    Sketcher.Constraint("Vertical", 1),
    Sketcher.Constraint("Horizontal", 3),
    Sketcher.Constraint("Vertical", 5),
    Sketcher.Constraint("Horizontal", 7),
    Sketcher.Constraint("Vertical", 9),
    Sketcher.Constraint("Horizontal", 11),
    Sketcher.Constraint("Vertical", 15),
    Sketcher.Constraint("Horizontal", 19),
    Sketcher.Constraint("Vertical", 21),
    Sketcher.Constraint("Horizontal", 23),
    Sketcher.Constraint("Vertical", 25),
    Sketcher.Constraint("Horizontal", 27),
    Sketcher.Constraint("Vertical", 29),
    Sketcher.Constraint("Horizontal", 31),
    Sketcher.Constraint("Vertical", 33),
    Sketcher.Constraint("Horizontal", 37),
    Sketcher.Constraint("Vertical", 41),
    Sketcher.Constraint("Horizontal", 43),
    Sketcher.Constraint("Vertical", 45),
    Sketcher.Constraint("Horizontal", 47),
    Sketcher.Constraint("Vertical", 49),
    Sketcher.Constraint("Horizontal", 51),
    Sketcher.Constraint("Vertical", 53),
    Sketcher.Constraint("Horizontal", 55),
    Sketcher.Constraint("Vertical", 59),
    Sketcher.Constraint("Horizontal", 63),
    Sketcher.Constraint("Vertical", 65),
    Sketcher.Constraint("Horizontal", 67),
    Sketcher.Constraint("Vertical", 69),
    Sketcher.Constraint("Horizontal", 71),
    Sketcher.Constraint("Vertical", 73),
    Sketcher.Constraint("Horizontal", 75),
    Sketcher.Constraint("Vertical", 77),
    Sketcher.Constraint("Horizontal", 81),
    Sketcher.Constraint("Vertical", 85),
    Sketcher.Constraint("Horizontal", 87),
    Sketcher.Constraint("Coincident", 88, 3, -1, 1),
    Sketcher.Constraint("Equal", 0, 2),
    Sketcher.Constraint("Equal", 2, 6),
    Sketcher.Constraint("Equal", 6, 8),
    Sketcher.Constraint("Equal", 10, 12),
    Sketcher.Constraint("Equal", 14, 16),
    Sketcher.Constraint("Equal", 12, 18),
    Sketcher.Constraint("Equal", 18, 20),
    Sketcher.Constraint("Equal", 8, 22),
    Sketcher.Constraint("Equal", 22, 24),
    Sketcher.Constraint("Equal", 4, 26),
    Sketcher.Constraint("Equal", 24, 28),
    Sketcher.Constraint("Equal", 28, 30),
    Sketcher.Constraint("Equal", 20, 32),
    Sketcher.Constraint("Equal", 32, 34),
    Sketcher.Constraint("Equal", 36, 38),
    Sketcher.Constraint("Equal", 34, 40),
    Sketcher.Constraint("Equal", 40, 42),
    Sketcher.Constraint("Equal", 30, 44),
    Sketcher.Constraint("Equal", 44, 46),
    Sketcher.Constraint("Equal", 26, 48),
    Sketcher.Constraint("Equal", 46, 50),
    Sketcher.Constraint("Equal", 50, 52),
    Sketcher.Constraint("Equal", 42, 54),
    Sketcher.Constraint("Equal", 54, 56),
    Sketcher.Constraint("Equal", 16, 58),
    Sketcher.Constraint("Equal", 58, 60),
    Sketcher.Constraint("Equal", 56, 62),
    Sketcher.Constraint("Equal", 62, 64),
    Sketcher.Constraint("Equal", 52, 66),
    Sketcher.Constraint("Equal", 66, 68),
    Sketcher.Constraint("Equal", 48, 70),
    Sketcher.Constraint("Equal", 68, 72),
    Sketcher.Constraint("Equal", 72, 74),
    Sketcher.Constraint("Equal", 64, 76),
    Sketcher.Constraint("Equal", 76, 78),
    Sketcher.Constraint("Equal", 38, 80),
    Sketcher.Constraint("Equal", 80, 82),
    Sketcher.Constraint("Equal", 78, 84),
    Sketcher.Constraint("Equal", 84, 86),
    Sketcher.Constraint("Symmetric", 0, 3, 44, 3, -1, 1),
    Sketcher.Constraint("Symmetric", 4, 3, 48, 3, -1, 1),
    Sketcher.Constraint("Symmetric", 6, 3, 50, 3, -1, 1),
    Sketcher.Constraint("Symmetric", 10, 3, 54, 3, -1, 1),
    Sketcher.Constraint("Symmetric", 14, 3, 58, 3, -1, 1),
    Sketcher.Constraint("Symmetric", 18, 3, 62, 3, -1, 1),
    Sketcher.Constraint("Symmetric", 22, 3, 66, 3, -1, 1),
    Sketcher.Constraint("Symmetric", 26, 3, 70, 3, -1, 1),
    Sketcher.Constraint("Symmetric", 28, 3, 72, 3, -1, 1),
    Sketcher.Constraint("Symmetric", 32, 3, 76, 3, -1, 1),
    Sketcher.Constraint("Symmetric", 36, 3, 80, 3, -1, 1),
    Sketcher.Constraint("Symmetric", 40, 3, 84, 3, -1, 1),
    Sketcher.Constraint("Symmetric", 34, 3, 40, 3, -2),
    Sketcher.Constraint("Symmetric", 30, 3, 44, 3, -2),
    Sketcher.Constraint("Symmetric", 26, 3, 48, 3, -2),
    Sketcher.Constraint("Symmetric", 24, 3, 50, 3, -2),
    Sketcher.Constraint("Symmetric", 20, 3, 54, 3, -2),
    Sketcher.Constraint("Symmetric", 17, 2, 56, 1, -2),
    Sketcher.Constraint("Symmetric", 13, 2, 60, 1, -2),
    Sketcher.Constraint("Symmetric", 79, 2, 82, 1, -2),
    Sketcher.Constraint("Parallel", 17, 35),
    Sketcher.Constraint("Parallel", 13, 39),
    Sketcher.Constraint("Horizontal", 28, 3, 46, 3),
    Sketcher.Constraint("Horizontal", 2, 3, 72, 3),
    Sketcher.Constraint("Horizontal", 4, 2, 69, 2),
    Sketcher.Constraint("Equal", 67, 1),
    Sketcher.Constraint("Diameter", 88, Q("0.262 in")),
    Sketcher.Constraint("Radius", 4, Q("0.125 in")),
    Sketcher.Constraint("Radius", 14, Q("0.187 in")),
    Sketcher.Constraint("Radius", 10, Q("0.0355 in")),
    Sketcher.Constraint("DistanceX", 0, 2, -1, 1, Q("0.16 in")),
    Sketcher.Constraint("DistanceY", -1, 1, 2, 2, Q("0.75 in")),
    Sketcher.Constraint("DistanceX", 4, 2, -1, 1, Q("0.75 in")),
    Sketcher.Constraint("DistanceY", -1, 1, 6, 2, Q("0.16 in")),
    Sketcher.Constraint("DistanceX", 8, 2, -1, 1, Q("0.59 in")),
    Sketcher.Constraint("DistanceX", 14, 3, -1, 1, Q("0.453 in")),
    Sketcher.Constraint("DistanceX", 32, 1, -1, 1, Q("0.405 in")),
    Sketcher.Constraint("DistanceY", 36, 1, -1, 1, Q("0.266 in")),
    Sketcher.Constraint("Radius", 0, 1.553618),
    Sketcher.Constraint("Radius", 36, 4.737573),
    Sketcher.Constraint("DistanceX", 3, 2, 3, 1, 10.229869),
    Sketcher.Constraint("DistanceY", 5, 2, 5, 1, 10.229892),
    Sketcher.Constraint("DistanceX", 34, 1, -1, 1, 10.022899),
    Sketcher.Constraint("Distance", 13, 6.690459),
    Sketcher.Constraint("DistanceX", 37, 1, 37, 2, 3.804368),
    Sketcher.Constraint("DistanceY", 9, 1, 9, 2, 3.767725),
])
pad1 = body.newObject("PartDesign::Pad", "Pad")
pad1.Profile = sketch1
pad1.Type = "TwoLengths"
pad1.Length = Q("6 in")
pad1.Length2 = Q("6 in")

doc.recompute()
